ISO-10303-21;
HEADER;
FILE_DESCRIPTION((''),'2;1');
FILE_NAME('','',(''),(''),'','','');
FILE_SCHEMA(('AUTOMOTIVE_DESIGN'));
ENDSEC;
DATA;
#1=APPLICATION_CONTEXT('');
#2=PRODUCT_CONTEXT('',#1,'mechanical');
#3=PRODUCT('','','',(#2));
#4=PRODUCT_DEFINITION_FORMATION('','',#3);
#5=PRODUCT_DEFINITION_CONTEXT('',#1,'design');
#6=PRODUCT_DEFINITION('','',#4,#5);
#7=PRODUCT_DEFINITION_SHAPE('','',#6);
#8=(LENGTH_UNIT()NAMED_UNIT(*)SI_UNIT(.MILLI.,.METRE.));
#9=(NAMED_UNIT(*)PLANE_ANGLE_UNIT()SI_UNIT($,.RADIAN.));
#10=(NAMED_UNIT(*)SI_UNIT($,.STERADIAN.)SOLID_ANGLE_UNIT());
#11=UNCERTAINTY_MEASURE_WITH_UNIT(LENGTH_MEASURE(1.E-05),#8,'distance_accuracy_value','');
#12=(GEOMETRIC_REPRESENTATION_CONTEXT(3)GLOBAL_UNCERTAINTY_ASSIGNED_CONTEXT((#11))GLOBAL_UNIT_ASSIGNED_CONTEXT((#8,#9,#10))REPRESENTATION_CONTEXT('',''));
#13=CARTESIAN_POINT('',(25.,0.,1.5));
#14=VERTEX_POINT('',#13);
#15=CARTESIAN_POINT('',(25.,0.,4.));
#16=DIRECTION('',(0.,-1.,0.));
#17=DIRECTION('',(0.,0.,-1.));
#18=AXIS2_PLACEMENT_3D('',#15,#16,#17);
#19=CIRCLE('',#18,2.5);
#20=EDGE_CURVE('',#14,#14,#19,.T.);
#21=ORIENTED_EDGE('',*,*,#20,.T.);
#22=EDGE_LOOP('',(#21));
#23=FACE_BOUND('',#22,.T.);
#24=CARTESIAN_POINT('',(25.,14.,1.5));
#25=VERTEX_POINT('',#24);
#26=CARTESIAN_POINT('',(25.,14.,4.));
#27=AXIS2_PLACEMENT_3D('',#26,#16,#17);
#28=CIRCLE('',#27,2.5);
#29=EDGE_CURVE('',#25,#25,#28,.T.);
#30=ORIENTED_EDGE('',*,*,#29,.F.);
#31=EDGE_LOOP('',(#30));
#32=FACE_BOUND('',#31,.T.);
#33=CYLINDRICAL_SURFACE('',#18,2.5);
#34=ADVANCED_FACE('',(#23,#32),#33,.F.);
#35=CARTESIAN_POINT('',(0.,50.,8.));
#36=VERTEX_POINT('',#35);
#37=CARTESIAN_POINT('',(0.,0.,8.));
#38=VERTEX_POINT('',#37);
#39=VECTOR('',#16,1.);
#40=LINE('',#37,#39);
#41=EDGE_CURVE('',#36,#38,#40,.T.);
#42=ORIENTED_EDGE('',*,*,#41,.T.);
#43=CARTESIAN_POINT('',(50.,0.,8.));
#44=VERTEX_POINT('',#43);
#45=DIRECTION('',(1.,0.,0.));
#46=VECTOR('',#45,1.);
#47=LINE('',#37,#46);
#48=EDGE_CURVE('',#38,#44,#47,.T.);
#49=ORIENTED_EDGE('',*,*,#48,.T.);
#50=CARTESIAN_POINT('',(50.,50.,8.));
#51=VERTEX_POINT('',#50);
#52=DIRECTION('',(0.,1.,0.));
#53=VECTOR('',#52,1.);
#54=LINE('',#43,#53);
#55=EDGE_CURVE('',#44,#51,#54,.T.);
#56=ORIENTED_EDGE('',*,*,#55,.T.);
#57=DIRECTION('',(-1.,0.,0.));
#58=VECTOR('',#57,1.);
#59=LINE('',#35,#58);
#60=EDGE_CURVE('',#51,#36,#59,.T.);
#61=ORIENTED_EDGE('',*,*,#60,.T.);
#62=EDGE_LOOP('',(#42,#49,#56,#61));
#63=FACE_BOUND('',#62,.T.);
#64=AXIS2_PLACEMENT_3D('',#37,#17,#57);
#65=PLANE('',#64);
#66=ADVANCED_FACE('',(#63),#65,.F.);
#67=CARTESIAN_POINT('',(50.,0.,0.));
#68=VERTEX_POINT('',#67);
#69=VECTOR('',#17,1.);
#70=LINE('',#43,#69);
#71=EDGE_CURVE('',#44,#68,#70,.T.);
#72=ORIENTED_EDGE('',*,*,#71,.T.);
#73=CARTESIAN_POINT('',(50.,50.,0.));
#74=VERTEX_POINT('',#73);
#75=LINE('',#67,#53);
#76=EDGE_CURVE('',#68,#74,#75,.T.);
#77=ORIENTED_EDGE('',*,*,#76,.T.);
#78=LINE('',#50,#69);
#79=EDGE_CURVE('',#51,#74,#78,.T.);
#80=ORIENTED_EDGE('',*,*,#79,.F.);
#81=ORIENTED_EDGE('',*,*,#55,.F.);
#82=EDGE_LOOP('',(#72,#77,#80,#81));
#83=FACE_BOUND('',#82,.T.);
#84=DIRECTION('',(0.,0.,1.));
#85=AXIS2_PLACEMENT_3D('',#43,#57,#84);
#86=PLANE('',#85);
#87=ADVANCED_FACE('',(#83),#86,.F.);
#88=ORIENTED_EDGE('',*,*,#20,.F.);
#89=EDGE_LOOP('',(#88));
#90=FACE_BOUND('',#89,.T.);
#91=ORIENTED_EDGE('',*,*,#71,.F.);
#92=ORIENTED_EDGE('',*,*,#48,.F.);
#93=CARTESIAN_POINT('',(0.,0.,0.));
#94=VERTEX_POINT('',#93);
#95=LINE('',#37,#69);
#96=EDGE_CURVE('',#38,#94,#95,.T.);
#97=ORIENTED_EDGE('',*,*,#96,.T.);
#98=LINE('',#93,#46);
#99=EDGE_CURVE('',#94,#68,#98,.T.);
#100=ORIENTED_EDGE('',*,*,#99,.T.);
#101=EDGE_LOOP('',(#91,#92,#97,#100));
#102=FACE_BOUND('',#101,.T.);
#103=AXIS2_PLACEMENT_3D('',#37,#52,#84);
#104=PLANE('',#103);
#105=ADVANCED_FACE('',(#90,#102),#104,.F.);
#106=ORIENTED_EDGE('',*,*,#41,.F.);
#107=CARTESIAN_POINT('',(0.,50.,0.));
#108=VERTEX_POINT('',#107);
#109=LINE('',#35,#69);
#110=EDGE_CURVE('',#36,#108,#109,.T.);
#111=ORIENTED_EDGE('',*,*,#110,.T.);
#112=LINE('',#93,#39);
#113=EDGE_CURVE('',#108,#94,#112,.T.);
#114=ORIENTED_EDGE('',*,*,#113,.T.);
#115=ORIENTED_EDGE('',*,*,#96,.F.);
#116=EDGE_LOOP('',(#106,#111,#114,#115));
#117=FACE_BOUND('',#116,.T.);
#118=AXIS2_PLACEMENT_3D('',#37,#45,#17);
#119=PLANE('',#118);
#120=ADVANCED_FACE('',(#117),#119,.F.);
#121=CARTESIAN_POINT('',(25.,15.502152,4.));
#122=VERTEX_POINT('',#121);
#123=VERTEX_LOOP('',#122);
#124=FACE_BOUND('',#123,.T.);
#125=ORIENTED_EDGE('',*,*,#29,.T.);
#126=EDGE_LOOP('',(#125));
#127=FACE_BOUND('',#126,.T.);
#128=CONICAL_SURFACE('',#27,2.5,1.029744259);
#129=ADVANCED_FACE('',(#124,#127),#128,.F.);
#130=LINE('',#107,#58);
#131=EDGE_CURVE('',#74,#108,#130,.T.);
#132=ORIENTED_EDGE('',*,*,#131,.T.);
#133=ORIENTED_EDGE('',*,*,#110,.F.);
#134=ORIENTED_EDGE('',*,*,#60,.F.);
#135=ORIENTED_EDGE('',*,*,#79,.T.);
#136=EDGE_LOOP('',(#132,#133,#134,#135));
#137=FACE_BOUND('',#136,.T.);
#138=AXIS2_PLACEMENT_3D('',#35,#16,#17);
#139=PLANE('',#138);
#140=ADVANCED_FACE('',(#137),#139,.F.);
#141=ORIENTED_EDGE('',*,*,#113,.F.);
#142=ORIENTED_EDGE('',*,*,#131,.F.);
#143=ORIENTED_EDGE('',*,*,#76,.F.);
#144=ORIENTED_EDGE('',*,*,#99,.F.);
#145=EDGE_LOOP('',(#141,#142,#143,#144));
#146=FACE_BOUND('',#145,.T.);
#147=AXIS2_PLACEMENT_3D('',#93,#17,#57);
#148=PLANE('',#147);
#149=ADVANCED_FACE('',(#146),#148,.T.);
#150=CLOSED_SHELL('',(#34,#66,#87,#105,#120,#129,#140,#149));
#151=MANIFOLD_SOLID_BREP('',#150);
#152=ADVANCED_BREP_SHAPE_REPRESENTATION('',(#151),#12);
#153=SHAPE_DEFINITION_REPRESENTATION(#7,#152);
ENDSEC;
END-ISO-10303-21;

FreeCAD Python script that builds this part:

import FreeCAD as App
import Part
import Sketcher

V = App.Vector
Q = App.Units.Quantity


def add_polygon(sketch, points):
    """Adds a closed chain of lines whose ends are joined by coincident constraints."""
    first, n = sketch.GeometryCount, len(points)
    for a, b in zip(points, points[1:] + points[:1]):
        sketch.addGeometry(Part.LineSegment(App.Vector(*a, 0), App.Vector(*b, 0)), False)
    for i in range(n):
        sketch.addConstraint(Sketcher.Constraint("Coincident", first + i, 2, first + (i + 1) % n, 1))

doc = App.newDocument("Part")
body = doc.addObject("PartDesign::Body", "Body")

sketch1 = body.newObject("Sketcher::SketchObject", "Sketch")
sketch1.AttachmentSupport = (doc.getObject("XY_Plane"), [""])
sketch1.MapMode = "FlatFace"
add_polygon(sketch1, [(0, 50), (0, 0), (50, 0), (50, 50)])
sketch1.addConstraint(Sketcher.Constraint("Vertical", 0))
sketch1.addConstraint(Sketcher.Constraint("Horizontal", 1))
sketch1.addConstraint(Sketcher.Constraint("Vertical", 2))
sketch1.addConstraint(Sketcher.Constraint("Horizontal", 3))
sketch1.addConstraint(Sketcher.Constraint("Coincident", 0, 2, -1, 1))
sketch1.addConstraint(Sketcher.Constraint("Equal", 3, 0))
sketch1.addConstraint(Sketcher.Constraint("DistanceX", 1, 1, 1, 2, Q("50 mm")))
pad1 = body.newObject("PartDesign::Pad", "Pad")
pad1.Profile = sketch1
pad1.Length = 8

sketch2 = body.newObject("Sketcher::SketchObject", "Sketch001")
sketch2.AttachmentSupport = (doc.getObject("XZ_Plane"), [""])
sketch2.MapMode = "FlatFace"
sketch2.addGeometry(Part.Circle(V(25, 4, 0), V(0, 0, 1), 2.5), False)
sketch2.addConstraint(Sketcher.Constraint("Diameter", 0, Q("5 mm")))
sketch2.addConstraint(Sketcher.Constraint("DistanceX", -1, 1, 0, 3, Q("25 mm")))
sketch2.addConstraint(Sketcher.Constraint("DistanceY", -1, 1, 0, 3, Q("4 mm")))
doc.recompute()
hole = body.newObject("PartDesign::Hole", "Hole")
hole.Profile = sketch2
hole.ThreadType = "None"
hole.Diameter = 5
hole.DepthType = "Dimension"
hole.Depth = 14
hole.DrillPoint = "Angled"
hole.DrillPointAngle = 118

doc.recompute()
